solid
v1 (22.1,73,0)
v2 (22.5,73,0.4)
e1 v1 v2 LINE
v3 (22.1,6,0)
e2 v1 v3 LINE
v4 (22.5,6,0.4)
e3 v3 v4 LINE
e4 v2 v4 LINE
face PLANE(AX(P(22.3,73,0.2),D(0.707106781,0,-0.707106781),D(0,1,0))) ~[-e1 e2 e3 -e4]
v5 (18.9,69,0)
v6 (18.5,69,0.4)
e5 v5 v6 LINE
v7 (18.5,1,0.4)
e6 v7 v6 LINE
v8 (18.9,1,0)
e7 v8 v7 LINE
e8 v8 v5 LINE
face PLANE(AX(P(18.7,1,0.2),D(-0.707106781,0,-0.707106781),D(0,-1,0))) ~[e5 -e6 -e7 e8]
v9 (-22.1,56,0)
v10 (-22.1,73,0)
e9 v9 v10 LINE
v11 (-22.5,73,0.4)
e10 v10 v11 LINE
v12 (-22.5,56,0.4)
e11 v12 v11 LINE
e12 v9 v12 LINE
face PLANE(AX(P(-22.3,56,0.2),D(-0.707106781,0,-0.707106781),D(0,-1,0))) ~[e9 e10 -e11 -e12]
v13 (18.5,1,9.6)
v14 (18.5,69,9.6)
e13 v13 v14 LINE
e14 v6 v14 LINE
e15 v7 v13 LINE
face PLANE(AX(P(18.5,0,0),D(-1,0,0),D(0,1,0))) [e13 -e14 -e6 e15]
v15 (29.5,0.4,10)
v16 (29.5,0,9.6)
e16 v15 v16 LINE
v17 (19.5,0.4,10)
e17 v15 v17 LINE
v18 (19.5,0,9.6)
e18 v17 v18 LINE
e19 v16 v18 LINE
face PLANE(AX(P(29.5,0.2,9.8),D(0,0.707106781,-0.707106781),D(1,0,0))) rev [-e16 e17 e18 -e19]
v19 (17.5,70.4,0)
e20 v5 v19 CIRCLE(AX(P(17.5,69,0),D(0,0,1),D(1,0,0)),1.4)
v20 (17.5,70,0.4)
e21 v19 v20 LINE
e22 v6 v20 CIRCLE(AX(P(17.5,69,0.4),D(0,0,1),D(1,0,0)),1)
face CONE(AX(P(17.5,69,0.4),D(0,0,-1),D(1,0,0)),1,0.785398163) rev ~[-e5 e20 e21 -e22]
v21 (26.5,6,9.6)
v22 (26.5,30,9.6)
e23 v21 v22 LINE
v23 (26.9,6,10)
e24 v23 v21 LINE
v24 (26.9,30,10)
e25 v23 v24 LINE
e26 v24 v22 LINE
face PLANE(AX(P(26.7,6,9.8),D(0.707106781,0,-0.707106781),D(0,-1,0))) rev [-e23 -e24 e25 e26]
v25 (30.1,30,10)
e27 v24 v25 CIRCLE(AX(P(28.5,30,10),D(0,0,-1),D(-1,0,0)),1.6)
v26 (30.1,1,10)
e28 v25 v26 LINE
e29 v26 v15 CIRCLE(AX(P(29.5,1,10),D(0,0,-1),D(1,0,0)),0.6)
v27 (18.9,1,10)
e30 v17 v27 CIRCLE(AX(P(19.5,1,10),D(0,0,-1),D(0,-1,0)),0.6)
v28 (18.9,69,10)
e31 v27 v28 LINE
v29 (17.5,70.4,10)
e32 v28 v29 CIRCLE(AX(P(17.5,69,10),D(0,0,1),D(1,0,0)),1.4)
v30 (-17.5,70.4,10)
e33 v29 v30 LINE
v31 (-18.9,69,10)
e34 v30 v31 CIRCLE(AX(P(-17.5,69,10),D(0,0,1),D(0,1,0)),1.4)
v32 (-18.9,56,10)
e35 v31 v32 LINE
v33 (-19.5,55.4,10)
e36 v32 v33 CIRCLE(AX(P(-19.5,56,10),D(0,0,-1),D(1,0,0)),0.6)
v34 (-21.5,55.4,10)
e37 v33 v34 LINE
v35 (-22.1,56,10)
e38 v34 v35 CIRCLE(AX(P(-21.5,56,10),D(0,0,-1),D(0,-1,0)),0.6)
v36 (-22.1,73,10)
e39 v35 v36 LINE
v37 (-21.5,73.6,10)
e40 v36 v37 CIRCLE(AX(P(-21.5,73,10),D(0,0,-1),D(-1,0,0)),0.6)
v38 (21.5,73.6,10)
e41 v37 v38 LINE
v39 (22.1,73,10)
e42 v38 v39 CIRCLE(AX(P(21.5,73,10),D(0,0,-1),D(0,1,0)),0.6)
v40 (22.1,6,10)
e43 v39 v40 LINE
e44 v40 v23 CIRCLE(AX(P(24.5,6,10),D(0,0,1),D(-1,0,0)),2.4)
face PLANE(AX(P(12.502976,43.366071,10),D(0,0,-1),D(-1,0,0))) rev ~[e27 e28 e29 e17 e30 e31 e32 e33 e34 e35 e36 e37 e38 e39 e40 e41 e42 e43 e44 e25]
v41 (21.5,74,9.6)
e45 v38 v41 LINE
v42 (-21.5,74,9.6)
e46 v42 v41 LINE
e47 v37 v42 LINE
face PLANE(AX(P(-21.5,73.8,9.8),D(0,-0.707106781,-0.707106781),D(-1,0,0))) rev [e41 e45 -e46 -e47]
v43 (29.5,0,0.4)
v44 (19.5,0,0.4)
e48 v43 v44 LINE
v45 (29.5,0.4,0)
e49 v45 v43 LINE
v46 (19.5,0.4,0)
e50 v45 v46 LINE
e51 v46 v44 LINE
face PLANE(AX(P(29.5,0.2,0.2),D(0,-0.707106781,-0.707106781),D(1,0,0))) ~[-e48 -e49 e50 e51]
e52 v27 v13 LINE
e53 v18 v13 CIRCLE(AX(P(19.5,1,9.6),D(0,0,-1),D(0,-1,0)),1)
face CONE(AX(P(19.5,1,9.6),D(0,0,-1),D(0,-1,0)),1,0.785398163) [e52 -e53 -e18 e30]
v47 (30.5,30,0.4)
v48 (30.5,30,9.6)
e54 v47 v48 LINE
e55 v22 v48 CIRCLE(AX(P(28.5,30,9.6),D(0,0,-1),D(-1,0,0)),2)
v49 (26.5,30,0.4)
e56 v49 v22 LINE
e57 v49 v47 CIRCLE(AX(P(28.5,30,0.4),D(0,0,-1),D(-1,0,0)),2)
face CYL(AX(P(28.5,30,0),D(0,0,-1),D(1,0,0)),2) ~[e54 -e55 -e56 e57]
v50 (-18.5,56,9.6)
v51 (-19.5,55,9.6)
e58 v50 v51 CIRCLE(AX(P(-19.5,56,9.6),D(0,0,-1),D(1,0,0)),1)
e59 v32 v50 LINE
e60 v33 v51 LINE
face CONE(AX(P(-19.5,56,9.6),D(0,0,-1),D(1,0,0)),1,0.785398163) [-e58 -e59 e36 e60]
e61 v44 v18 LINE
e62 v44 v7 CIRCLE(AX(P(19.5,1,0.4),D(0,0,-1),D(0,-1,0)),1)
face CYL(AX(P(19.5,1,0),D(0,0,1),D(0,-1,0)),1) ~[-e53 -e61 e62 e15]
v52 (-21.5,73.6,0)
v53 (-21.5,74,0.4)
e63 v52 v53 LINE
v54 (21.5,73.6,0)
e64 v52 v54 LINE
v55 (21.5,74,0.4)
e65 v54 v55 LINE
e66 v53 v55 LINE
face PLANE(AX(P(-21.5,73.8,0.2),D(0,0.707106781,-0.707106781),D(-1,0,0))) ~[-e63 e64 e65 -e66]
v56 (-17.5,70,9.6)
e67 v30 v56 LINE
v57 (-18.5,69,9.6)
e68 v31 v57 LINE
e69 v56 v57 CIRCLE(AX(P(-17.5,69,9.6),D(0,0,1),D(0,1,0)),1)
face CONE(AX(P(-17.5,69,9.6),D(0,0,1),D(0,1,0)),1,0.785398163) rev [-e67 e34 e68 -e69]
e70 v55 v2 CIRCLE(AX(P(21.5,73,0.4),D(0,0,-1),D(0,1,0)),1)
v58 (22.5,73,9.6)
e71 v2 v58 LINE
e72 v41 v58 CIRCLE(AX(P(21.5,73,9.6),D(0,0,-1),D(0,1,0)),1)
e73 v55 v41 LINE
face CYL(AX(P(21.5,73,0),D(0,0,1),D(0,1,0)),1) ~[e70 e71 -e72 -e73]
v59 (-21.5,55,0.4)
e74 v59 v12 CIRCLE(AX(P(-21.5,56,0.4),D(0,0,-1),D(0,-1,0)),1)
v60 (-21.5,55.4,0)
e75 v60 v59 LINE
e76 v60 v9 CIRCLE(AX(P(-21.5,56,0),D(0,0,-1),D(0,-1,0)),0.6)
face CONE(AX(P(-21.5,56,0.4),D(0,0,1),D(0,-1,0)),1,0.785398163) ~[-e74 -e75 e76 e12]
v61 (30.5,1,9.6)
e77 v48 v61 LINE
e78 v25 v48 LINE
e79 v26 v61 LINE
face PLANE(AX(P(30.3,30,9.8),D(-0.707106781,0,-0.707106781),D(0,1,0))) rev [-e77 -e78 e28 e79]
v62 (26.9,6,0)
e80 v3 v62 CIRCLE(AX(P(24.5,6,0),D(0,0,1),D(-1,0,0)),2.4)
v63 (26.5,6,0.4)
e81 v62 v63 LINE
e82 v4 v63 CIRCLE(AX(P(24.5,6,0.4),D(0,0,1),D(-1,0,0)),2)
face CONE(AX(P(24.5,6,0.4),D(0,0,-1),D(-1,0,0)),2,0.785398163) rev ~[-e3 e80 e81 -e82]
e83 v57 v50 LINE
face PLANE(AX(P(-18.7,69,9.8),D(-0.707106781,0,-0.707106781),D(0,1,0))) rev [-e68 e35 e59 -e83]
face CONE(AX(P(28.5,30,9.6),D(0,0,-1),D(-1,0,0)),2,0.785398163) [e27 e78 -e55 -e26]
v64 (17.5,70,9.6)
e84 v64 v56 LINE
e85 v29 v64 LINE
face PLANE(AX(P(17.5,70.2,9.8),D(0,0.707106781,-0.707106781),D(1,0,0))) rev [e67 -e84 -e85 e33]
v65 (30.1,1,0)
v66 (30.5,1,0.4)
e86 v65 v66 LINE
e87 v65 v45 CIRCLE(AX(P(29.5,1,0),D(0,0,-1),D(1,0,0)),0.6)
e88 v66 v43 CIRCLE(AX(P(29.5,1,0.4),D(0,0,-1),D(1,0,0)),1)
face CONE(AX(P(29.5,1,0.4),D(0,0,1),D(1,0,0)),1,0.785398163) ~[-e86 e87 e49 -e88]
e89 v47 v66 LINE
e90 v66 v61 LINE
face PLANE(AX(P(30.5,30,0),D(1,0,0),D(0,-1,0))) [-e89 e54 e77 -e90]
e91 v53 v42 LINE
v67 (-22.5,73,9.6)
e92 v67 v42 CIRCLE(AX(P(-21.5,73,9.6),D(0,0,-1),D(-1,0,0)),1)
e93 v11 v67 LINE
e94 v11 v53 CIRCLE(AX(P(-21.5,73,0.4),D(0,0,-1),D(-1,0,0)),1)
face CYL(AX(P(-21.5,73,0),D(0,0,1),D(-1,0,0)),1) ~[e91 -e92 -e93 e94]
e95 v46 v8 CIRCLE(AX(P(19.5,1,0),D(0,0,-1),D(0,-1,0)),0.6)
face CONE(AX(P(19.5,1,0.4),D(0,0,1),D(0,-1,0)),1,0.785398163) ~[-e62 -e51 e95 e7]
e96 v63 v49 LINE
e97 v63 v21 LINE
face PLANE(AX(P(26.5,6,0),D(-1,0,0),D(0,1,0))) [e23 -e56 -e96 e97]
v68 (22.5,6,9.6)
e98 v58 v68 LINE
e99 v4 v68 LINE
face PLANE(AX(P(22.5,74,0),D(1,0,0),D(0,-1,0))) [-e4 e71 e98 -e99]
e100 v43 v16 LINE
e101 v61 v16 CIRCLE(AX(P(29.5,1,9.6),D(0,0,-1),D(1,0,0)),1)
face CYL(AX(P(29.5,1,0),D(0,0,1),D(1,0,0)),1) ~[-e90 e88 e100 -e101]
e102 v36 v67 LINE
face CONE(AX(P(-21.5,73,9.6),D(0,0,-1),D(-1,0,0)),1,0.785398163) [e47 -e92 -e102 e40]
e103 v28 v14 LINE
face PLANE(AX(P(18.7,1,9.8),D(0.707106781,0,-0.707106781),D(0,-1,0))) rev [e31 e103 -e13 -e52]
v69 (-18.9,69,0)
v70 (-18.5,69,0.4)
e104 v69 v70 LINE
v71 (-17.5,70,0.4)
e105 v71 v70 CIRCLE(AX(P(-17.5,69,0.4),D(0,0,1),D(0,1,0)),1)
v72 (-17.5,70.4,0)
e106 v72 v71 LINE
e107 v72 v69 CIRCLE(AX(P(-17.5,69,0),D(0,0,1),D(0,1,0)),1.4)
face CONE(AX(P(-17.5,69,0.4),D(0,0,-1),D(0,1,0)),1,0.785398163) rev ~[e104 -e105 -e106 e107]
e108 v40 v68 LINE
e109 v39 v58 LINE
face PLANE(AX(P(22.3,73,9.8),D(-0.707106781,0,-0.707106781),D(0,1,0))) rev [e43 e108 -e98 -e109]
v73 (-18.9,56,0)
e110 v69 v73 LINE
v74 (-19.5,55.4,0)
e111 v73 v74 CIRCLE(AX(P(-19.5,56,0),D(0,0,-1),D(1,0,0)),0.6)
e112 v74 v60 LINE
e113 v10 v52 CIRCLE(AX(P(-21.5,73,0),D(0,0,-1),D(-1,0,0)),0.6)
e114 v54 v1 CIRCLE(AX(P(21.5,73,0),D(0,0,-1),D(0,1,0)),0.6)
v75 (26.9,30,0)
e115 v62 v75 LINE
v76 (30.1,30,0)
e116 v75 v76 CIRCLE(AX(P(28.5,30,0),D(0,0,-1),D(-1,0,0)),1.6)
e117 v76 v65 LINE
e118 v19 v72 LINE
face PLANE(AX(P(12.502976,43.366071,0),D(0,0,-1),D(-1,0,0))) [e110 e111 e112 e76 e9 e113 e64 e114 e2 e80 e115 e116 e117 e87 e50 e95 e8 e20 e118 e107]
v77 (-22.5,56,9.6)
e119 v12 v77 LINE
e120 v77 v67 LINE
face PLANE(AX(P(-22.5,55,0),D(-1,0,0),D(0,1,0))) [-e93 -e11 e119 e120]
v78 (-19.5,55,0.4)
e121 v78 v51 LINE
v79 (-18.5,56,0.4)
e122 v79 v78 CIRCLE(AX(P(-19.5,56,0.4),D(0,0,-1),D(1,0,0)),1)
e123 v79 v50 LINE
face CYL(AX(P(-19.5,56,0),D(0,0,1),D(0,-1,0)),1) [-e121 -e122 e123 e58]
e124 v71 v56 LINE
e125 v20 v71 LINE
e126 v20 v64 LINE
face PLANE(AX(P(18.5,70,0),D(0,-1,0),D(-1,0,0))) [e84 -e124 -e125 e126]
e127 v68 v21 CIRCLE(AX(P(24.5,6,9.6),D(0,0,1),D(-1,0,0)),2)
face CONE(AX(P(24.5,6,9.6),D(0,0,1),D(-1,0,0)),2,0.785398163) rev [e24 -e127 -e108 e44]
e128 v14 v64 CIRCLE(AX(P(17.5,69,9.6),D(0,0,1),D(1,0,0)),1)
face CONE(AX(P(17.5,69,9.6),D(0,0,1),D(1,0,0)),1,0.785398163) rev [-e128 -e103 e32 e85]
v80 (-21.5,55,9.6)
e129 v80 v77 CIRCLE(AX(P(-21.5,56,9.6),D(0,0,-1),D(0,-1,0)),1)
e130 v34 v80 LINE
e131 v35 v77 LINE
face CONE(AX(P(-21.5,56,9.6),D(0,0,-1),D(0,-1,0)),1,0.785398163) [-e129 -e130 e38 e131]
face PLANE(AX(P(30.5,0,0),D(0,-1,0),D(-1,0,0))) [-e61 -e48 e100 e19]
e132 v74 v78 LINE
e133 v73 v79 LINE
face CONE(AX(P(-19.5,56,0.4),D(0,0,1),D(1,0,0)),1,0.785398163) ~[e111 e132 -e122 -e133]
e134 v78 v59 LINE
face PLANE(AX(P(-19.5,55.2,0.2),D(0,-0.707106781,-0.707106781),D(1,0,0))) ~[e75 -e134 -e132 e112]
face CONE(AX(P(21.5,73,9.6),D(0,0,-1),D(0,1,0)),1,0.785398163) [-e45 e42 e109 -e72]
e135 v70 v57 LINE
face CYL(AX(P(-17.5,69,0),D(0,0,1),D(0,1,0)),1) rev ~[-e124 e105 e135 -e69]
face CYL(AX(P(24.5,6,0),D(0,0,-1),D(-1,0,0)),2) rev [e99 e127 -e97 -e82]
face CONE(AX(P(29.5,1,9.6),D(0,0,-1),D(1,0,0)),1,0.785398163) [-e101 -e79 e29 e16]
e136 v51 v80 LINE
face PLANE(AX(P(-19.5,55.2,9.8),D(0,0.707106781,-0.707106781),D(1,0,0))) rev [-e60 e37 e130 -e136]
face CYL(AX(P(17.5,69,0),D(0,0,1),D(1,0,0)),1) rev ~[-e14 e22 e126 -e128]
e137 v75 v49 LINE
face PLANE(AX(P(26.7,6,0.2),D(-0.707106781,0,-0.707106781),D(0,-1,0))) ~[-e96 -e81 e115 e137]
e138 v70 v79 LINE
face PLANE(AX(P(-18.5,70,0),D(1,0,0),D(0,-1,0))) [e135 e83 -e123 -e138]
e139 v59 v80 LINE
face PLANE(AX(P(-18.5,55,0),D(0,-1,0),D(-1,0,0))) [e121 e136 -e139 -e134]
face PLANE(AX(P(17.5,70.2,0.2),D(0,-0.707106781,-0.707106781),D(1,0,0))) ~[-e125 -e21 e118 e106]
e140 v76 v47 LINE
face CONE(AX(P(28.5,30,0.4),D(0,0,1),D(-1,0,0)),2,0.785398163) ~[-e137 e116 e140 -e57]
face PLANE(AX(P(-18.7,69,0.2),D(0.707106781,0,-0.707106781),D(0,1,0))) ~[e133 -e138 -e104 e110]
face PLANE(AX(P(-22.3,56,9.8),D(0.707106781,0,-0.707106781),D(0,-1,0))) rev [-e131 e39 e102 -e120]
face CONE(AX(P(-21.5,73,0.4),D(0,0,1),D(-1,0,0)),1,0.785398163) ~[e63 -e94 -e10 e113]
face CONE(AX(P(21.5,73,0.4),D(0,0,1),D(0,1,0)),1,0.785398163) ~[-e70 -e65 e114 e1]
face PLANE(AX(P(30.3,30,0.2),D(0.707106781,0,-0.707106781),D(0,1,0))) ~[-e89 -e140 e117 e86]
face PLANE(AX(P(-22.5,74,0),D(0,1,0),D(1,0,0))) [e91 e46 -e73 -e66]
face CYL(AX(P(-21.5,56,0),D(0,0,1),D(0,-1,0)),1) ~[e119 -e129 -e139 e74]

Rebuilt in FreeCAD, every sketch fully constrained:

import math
import FreeCAD as App
import Part
import Sketcher

V = App.Vector


def edges_at(feature, points):
    """Names of the edges that pass closest to the given points."""
    edges = feature.Shape.Edges
    near = lambda p: min(range(len(edges)), key=lambda i: edges[i].distToShape(Part.Vertex(*p))[0])
    return sorted({f"Edge{near(p) + 1}" for p in points})

doc = App.newDocument("Part")
body = doc.addObject("PartDesign::Body", "Body")

sketch1 = body.newObject("Sketcher::SketchObject", "Sketch")
sketch1.AttachmentSupport = (doc.getObject("XY_Plane"), [""])
sketch1.MapMode = "FlatFace"
sketch1.addGeometry([
    Part.LineSegment(V(-22.5, 55, 0), V(-18.5, 55, 0)),
    Part.LineSegment(V(-18.5, 55, 0), V(-18.5, 70, 0)),
    Part.LineSegment(V(-18.5, 70, 0), V(18.5, 70, 0)),
    Part.LineSegment(V(18.5, 70, 0), V(18.5, 0, 0)),
    Part.LineSegment(V(18.5, 0, 0), V(30.5, 0, 0)),
    Part.LineSegment(V(30.5, 0, 0), V(30.5, 30, 0)),
    Part.ArcOfCircle(Part.Circle(V(28.5, 30, 0), V(0, 0, 1), 2), math.radians(0), math.radians(180)),
    Part.LineSegment(V(26.5, 30, 0), V(26.5, 6, 0)),
    Part.ArcOfCircle(Part.Circle(V(24.5, 6, 0), V(0, 0, 1), 2), math.radians(180), math.radians(360)),
    Part.LineSegment(V(22.5, 6, 0), V(22.5, 74, 0)),
    Part.LineSegment(V(22.5, 74, 0), V(-22.5, 74, 0)),
    Part.LineSegment(V(-22.5, 74, 0), V(-22.5, 55, 0)),
], False)
sketch1.addConstraint([
    Sketcher.Constraint("Coincident", 0, 2, 1, 1),
    Sketcher.Constraint("Coincident", 1, 2, 2, 1),
    Sketcher.Constraint("Coincident", 2, 2, 3, 1),
    Sketcher.Constraint("Coincident", 3, 2, 4, 1),
    Sketcher.Constraint("Coincident", 4, 2, 5, 1),
    Sketcher.Constraint("Tangent", 5, 2, 6, 1),
    Sketcher.Constraint("Tangent", 6, 2, 7, 1),
    Sketcher.Constraint("Tangent", 7, 2, 8, 2),
    Sketcher.Constraint("Tangent", 8, 1, 9, 1),
    Sketcher.Constraint("Coincident", 9, 2, 10, 1),
    Sketcher.Constraint("Coincident", 10, 2, 11, 1),
    Sketcher.Constraint("Coincident", 11, 2, 0, 1),
    Sketcher.Constraint("Horizontal", 0),
    Sketcher.Constraint("Vertical", 1),
    Sketcher.Constraint("Horizontal", 2),
    Sketcher.Constraint("Vertical", 3),
    Sketcher.Constraint("Horizontal", 4),
    Sketcher.Constraint("Vertical", 5),
    Sketcher.Constraint("Vertical", 7),
    Sketcher.Constraint("Vertical", 9),
    Sketcher.Constraint("Horizontal", 10),
    Sketcher.Constraint("Vertical", 11),
    Sketcher.Constraint("Equal", 6, 8),
    Sketcher.Constraint("PointOnObject", 3, 2, -1),
    Sketcher.Constraint("Radius", 6, 2.0),
    Sketcher.Constraint("DistanceX", 0, 1, 0, 2, 4.0),
    Sketcher.Constraint("DistanceX", 2, 1, 2, 2, 37.0),
    Sketcher.Constraint("DistanceX", 4, 1, 4, 2, 12.0),
    Sketcher.Constraint("DistanceY", 1, 1, 1, 2, 15.0),
    Sketcher.Constraint("DistanceY", 3, 2, 3, 1, 70.0),
    Sketcher.Constraint("DistanceY", 5, 1, 5, 2, 30.0),
    Sketcher.Constraint("DistanceY", 7, 2, 7, 1, 24.0),
    Sketcher.Constraint("DistanceY", 9, 1, 9, 2, 68.0),
    Sketcher.Constraint("DistanceX", -1, 1, 6, 3, 28.5),
])
pad1 = body.newObject("PartDesign::Pad", "Pad")
pad1.Profile = sketch1
pad1.Length = 10
doc.recompute()

fillet = body.newObject("PartDesign::Fillet", "Fillet")
fillet.Base = (pad1, edges_at(pad1, [
    (18.5, 70, 5),
    (-18.5, 55, 5),
    (-22.5, 55, 5),
    (-22.5, 74, 5),
    (22.5, 74, 5),
    (18.5, 0, 5),
    (30.5, 0, 5),
    (-18.5, 70, 5),
]))
fillet.Radius = 1
doc.recompute()

chamfer = body.newObject("PartDesign::Chamfer", "Chamfer")
chamfer.Base = (fillet, edges_at(fillet, [
    (30.5, 15.5, 10),
    (30.207, 0.293, 10),
    (28.5, 32, 10),
    (24.5, 0, 10),
    (26.5, 18, 10),
    (18.793, 0.293, 10),
    (24.5, 4, 10),
    (18.5, 35, 10),
    (22.5, 39.5, 10),
    (18.207, 69.707, 10),
    (22.207, 73.707, 10),
    (0, 70, 10),
    (0, 74, 10),
    (-18.207, 69.707, 10),
    (-22.207, 73.707, 10),
    (-18.5, 62.5, 10),
    (-22.5, 64.5, 10),
    (-18.793, 55.293, 10),
    (-22.207, 55.293, 10),
    (-20.5, 55, 10),
    (30.5, 15.5, 0),
    (30.207, 0.293, 0),
    (28.5, 32, 0),
    (24.5, 0, 0),
    (26.5, 18, 0),
    (18.793, 0.293, 0),
    (24.5, 4, 0),
    (18.5, 35, 0),
    (22.5, 39.5, 0),
    (18.207, 69.707, 0),
    (22.207, 73.707, 0),
    (0, 70, 0),
    (0, 74, 0),
    (-18.207, 69.707, 0),
    (-22.207, 73.707, 0),
    (-18.5, 62.5, 0),
    (-22.5, 64.5, 0),
    (-18.793, 55.293, 0),
    (-22.207, 55.293, 0),
    (-20.5, 55, 0),
]))
chamfer.Size = 0.4

doc.recompute()
